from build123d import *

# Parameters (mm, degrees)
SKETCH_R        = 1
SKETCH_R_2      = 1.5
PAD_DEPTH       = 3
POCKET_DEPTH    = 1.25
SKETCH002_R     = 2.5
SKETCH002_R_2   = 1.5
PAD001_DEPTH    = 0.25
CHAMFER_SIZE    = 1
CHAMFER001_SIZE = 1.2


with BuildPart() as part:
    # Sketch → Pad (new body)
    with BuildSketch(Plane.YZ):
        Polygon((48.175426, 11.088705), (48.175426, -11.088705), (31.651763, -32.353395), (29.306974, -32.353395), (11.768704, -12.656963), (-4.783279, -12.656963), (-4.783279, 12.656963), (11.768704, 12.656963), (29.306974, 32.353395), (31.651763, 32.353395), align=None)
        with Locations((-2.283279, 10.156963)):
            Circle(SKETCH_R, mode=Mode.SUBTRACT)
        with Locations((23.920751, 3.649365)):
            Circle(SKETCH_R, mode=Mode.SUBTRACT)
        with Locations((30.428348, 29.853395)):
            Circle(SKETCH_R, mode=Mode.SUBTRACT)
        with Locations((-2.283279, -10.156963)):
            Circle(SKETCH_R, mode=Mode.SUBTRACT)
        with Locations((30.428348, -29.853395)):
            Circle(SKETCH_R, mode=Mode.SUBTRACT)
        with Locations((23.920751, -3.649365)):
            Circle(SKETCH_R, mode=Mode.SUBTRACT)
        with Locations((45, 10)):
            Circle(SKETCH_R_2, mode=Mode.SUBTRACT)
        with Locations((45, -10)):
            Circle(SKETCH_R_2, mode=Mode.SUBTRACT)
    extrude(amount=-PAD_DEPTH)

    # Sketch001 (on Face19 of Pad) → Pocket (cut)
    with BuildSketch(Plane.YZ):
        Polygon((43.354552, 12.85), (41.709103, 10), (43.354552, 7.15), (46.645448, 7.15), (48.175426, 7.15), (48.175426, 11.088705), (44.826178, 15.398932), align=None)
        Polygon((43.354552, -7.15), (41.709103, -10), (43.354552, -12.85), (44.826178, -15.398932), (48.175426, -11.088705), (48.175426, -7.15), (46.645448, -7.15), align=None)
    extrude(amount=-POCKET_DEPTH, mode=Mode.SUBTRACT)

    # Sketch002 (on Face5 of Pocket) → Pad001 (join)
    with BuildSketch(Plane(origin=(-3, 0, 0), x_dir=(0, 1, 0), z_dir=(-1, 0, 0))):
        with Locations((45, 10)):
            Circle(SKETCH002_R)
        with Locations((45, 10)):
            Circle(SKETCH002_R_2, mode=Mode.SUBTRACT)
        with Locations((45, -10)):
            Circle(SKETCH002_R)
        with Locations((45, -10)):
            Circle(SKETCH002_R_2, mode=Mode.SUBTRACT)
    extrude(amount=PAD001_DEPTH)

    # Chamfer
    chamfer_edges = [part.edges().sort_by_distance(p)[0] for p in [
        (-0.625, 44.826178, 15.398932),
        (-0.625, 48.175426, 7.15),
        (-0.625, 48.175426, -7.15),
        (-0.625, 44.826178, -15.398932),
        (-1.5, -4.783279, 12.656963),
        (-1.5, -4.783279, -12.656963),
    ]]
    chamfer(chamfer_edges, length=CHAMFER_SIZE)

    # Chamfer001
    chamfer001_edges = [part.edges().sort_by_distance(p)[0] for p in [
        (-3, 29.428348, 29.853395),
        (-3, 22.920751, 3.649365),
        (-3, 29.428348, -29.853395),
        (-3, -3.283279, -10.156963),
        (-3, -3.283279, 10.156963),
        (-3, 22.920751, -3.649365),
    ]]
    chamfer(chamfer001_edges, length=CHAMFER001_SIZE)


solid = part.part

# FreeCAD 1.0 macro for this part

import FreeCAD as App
import Part
import Sketcher
Q = App.Units.Quantity


def edges_at(feature, points):
    """Names of the edges that pass closest to the given points."""
    edges = feature.Shape.Edges
    near = lambda p: min(range(len(edges)), key=lambda i: edges[i].distToShape(Part.Vertex(*p))[0])
    return sorted({f"Edge{near(p) + 1}" for p in points})


def add_polygon(sketch, points):
    """Adds a closed chain of lines whose ends are joined by coincident constraints."""
    first, n = sketch.GeometryCount, len(points)
    for a, b in zip(points, points[1:] + points[:1]):
        sketch.addGeometry(Part.LineSegment(App.Vector(*a, 0), App.Vector(*b, 0)), False)
    for i in range(n):
        sketch.addConstraint(Sketcher.Constraint("Coincident", first + i, 2, first + (i + 1) % n, 1))

doc = App.newDocument("Part")
body = doc.addObject("PartDesign::Body", "Body")

# Sketch on YZ plane
sketch1 = doc.addObject("Sketcher::SketchObject", "Sketch")
body.addObject(sketch1)
sketch1.AttachmentSupport = (doc.YZ_Plane, [""])
sketch1.MapMode = "FlatFace"
add_polygon(sketch1, [(48.2, -11.1), (48.2, 11.1), (31.7, 32.4), (29.3, 32.4), (11.8, 12.7), (-4.8, 12.7), (-4.8, -12.7), (11.8, -12.7), (29.3, -32.4), (31.7, -32.4)])  # lines 0-9
sketch1.addGeometry(Part.Circle(App.Vector(30.4, -29.9, 0), App.Vector(0, 0, 1), 1), False)  # 10
sketch1.addGeometry(Part.Circle(App.Vector(45, -10, 0), App.Vector(0, 0, 1), 1.5), False)  # 11
sketch1.addGeometry(Part.Circle(App.Vector(23.9, -3.6, 0), App.Vector(0, 0, 1), 1), False)  # 12
sketch1.addGeometry(Part.Circle(App.Vector(-2.3, -10.2, 0), App.Vector(0, 0, 1), 1), False)  # 13
sketch1.addGeometry(Part.Circle(App.Vector(45, 10, 0), App.Vector(0, 0, 1), 1.5), False)  # 14
sketch1.addGeometry(Part.Circle(App.Vector(23.9, 3.6, 0), App.Vector(0, 0, 1), 1), False)  # 15
sketch1.addGeometry(Part.Circle(App.Vector(30.4, 29.9, 0), App.Vector(0, 0, 1), 1), False)  # 16
sketch1.addGeometry(Part.Circle(App.Vector(-2.3, 10.2, 0), App.Vector(0, 0, 1), 1), False)  # 17
sketch1.addConstraint(Sketcher.Constraint("Vertical", 0))
sketch1.addConstraint(Sketcher.Constraint("Horizontal", 2))
sketch1.addConstraint(Sketcher.Constraint("Horizontal", 4))
sketch1.addConstraint(Sketcher.Constraint("Vertical", 5))
sketch1.addConstraint(Sketcher.Constraint("Horizontal", 6))
sketch1.addConstraint(Sketcher.Constraint("Horizontal", 8))
sketch1.addConstraint(Sketcher.Constraint("Equal", 10, 12))
sketch1.addConstraint(Sketcher.Constraint("Equal", 12, 13))
sketch1.addConstraint(Sketcher.Constraint("Equal", 11, 14))
sketch1.addConstraint(Sketcher.Constraint("Equal", 13, 15))
sketch1.addConstraint(Sketcher.Constraint("Equal", 15, 16))
sketch1.addConstraint(Sketcher.Constraint("Equal", 16, 17))
sketch1.addConstraint(Sketcher.Constraint("Symmetric", 11, 3, 14, 3, -1))
sketch1.addConstraint(Sketcher.Constraint("Symmetric", 12, 3, 15, 3, -1))
sketch1.addConstraint(Sketcher.Constraint("Symmetric", 10, 3, 16, 3, -1))
sketch1.addConstraint(Sketcher.Constraint("Symmetric", 13, 3, 17, 3, -1))
sketch1.addConstraint(Sketcher.Constraint("Symmetric", 3, 2, 6, 2, -1))
sketch1.addConstraint(Sketcher.Constraint("Symmetric", 2, 2, 7, 2, -1))
sketch1.addConstraint(Sketcher.Constraint("Vertical", 1, 2, 8, 2))
sketch1.addConstraint(Sketcher.Constraint("Equal", 1, 9))
sketch1.addConstraint(Sketcher.Constraint("Diameter", 10, Q("2 mm")))
sketch1.addConstraint(Sketcher.Constraint("Diameter", 11, Q("3 mm")))
sketch1.addConstraint(Sketcher.Constraint("DistanceX", -1, 1, 11, 3, Q("45 mm")))
sketch1.addConstraint(Sketcher.Constraint("DistanceY", 11, 3, -1, 1, Q("10 mm")))
sketch1.addConstraint(Sketcher.Constraint("DistanceY", 16, 3, 1, 2, Q("2.5 mm")))
sketch1.addConstraint(Sketcher.Constraint("DistanceY", 17, 3, 3, 2, Q("2.5 mm")))
sketch1.addConstraint(Sketcher.Constraint("DistanceX", 4, 2, 17, 3, Q("2.5 mm")))
sketch1.addConstraint(Sketcher.Constraint("Distance", 3, Q("26.373099 mm")))
sketch1.addConstraint(Sketcher.Constraint("DistanceX", 2, 2, 2, 1, Q("2.344789 mm")))
sketch1.addConstraint(Sketcher.Constraint("DistanceY", 0, 1, 0, 2, Q("22.17741 mm")))
sketch1.addConstraint(Sketcher.Constraint("Distance", 1, Q("26.929881 mm")))
sketch1.addConstraint(Sketcher.Constraint("DistanceX", 4, 2, 4, 1, Q("16.551983 mm")))
sketch1.addConstraint(Sketcher.Constraint("DistanceY", 5, 2, 5, 1, Q("25.313926 mm")))
sketch1.addConstraint(Sketcher.Constraint("DistanceX", -1, 1, 10, 3, Q("30.428348 mm")))
sketch1.addConstraint(Sketcher.Constraint("DistanceX", -1, 1, 12, 3, Q("23.920751 mm")))
sketch1.addConstraint(Sketcher.Constraint("DistanceX", 13, 3, -1, 1, Q("2.283279 mm")))
sketch1.addConstraint(Sketcher.Constraint("DistanceY", 10, 3, 12, 3, Q("26.20403 mm")))
sketch1.addConstraint(Sketcher.Constraint("DistanceY", 12, 3, 15, 3, Q("7.29873 mm")))
pad1 = doc.addObject("PartDesign::Pad", "Pad")
body.addObject(pad1)
pad1.Profile = sketch1
pad1.Length = 3
pad1.Reversed = True

# Sketch on YZ plane
sketch2 = doc.addObject("Sketcher::SketchObject", "Sketch001")
body.addObject(sketch2)
sketch2.AttachmentSupport = (doc.YZ_Plane, [""])
sketch2.MapMode = "FlatFace"
add_polygon(sketch2, [(43.4, 12.8), (41.7, 10), (43.4, 7.2), (48.2, 7.2), (48.2, 11.1), (44.8, 15.4)])  # lines 0-5
add_polygon(sketch2, [(43.4, -7.2), (41.7, -10), (43.4, -12.8), (44.8, -15.4), (48.2, -11.1), (48.2, -7.2)])  # lines 6-11
sketch2.addConstraint(Sketcher.Constraint("Horizontal", 2))
sketch2.addConstraint(Sketcher.Constraint("Vertical", 3))
sketch2.addConstraint(Sketcher.Constraint("Vertical", 10))
sketch2.addConstraint(Sketcher.Constraint("Horizontal", 11))
sketch2.addConstraint(Sketcher.Constraint("Symmetric", 0, 2, 6, 2, -1))
sketch2.addConstraint(Sketcher.Constraint("Symmetric", 5, 2, 7, 2, -1))
sketch2.addConstraint(Sketcher.Constraint("Symmetric", 4, 2, 8, 2, -1))
sketch2.addConstraint(Sketcher.Constraint("Symmetric", 3, 2, 9, 2, -1))
sketch2.addConstraint(Sketcher.Constraint("Symmetric", 1, 2, 11, 2, -1))
sketch2.addConstraint(Sketcher.Constraint("Parallel", 0, 5))
sketch2.addConstraint(Sketcher.Constraint("Parallel", 5, 6))
sketch2.addConstraint(Sketcher.Constraint("Vertical", 1, 2, 5, 2))
sketch2.addConstraint(Sketcher.Constraint("Angle", 0, Q("-120.000011 deg")))
sketch2.addConstraint(Sketcher.Constraint("DistanceY", -1, 1, 0, 2, Q("10 mm")))
sketch2.addConstraint(Sketcher.Constraint("DistanceY", 1, 2, 5, 2, Q("5.7 mm")))
sketch2.addConstraint(Sketcher.Constraint("DistanceX", 2, 1, 2, 2, Q("4.820874 mm")))
sketch2.addConstraint(Sketcher.Constraint("DistanceY", 3, 1, 3, 2, Q("3.938705 mm")))
sketch2.addConstraint(Sketcher.Constraint("DistanceX", -1, 1, 1, 2, Q("43.354552 mm")))
sketch2.addConstraint(Sketcher.Constraint("DistanceX", 4, 2, 3, 2, Q("3.349248 mm")))
pocket1 = doc.addObject("PartDesign::Pocket", "Pocket")
body.addObject(pocket1)
pocket1.Profile = sketch2
pocket1.Length = 1.25

# Sketch on YZ plane
sketch3 = doc.addObject("Sketcher::SketchObject", "Sketch002")
body.addObject(sketch3)
sketch3.AttachmentSupport = (doc.YZ_Plane, [""])
sketch3.MapMode = "FlatFace"
sketch3.AttachmentOffset = App.Placement(App.Vector(0, 0, -3), App.Rotation())
sketch3.addGeometry(Part.Circle(App.Vector(45, -10, 0), App.Vector(0, 0, 1), 2.5), False)
sketch3.addGeometry(Part.Circle(App.Vector(45, -10, 0), App.Vector(0, 0, 1), 1.5), False)
sketch3.addGeometry(Part.Circle(App.Vector(45, 10, 0), App.Vector(0, 0, 1), 2.5), False)
sketch3.addGeometry(Part.Circle(App.Vector(45, 10, 0), App.Vector(0, 0, 1), 1.5), False)
sketch3.addConstraint(Sketcher.Constraint("Coincident", 1, 3, 0, 3))
sketch3.addConstraint(Sketcher.Constraint("Coincident", 3, 3, 2, 3))
sketch3.addConstraint(Sketcher.Constraint("Equal", 0, 2))
sketch3.addConstraint(Sketcher.Constraint("Equal", 1, 3))
sketch3.addConstraint(Sketcher.Constraint("Symmetric", 0, 3, 2, 3, -1))
sketch3.addConstraint(Sketcher.Constraint("Diameter", 0, Q("5 mm")))
sketch3.addConstraint(Sketcher.Constraint("Diameter", 1, Q("3 mm")))
sketch3.addConstraint(Sketcher.Constraint("DistanceX", -1, 1, 0, 3, Q("45 mm")))
sketch3.addConstraint(Sketcher.Constraint("DistanceY", 0, 3, -1, 1, Q("10 mm")))
pad2 = doc.addObject("PartDesign::Pad", "Pad001")
body.addObject(pad2)
pad2.Profile = sketch3
pad2.Length = 0.25
pad2.Reversed = True
doc.recompute()

chamfer = doc.addObject("PartDesign::Chamfer", "Chamfer")
body.addObject(chamfer)
chamfer.Base = (pad2, edges_at(pad2, [
    (-0.625, 44.826, 15.399),
    (-0.625, 48.175, 7.15),
    (-0.625, 48.175, -7.15),
    (-0.625, 44.826, -15.399),
    (-1.5, -4.783, 12.657),
    (-1.5, -4.783, -12.657),
]))
chamfer.Size = 1
doc.recompute()

chamfer2 = doc.addObject("PartDesign::Chamfer", "Chamfer001")
body.addObject(chamfer2)
chamfer2.Base = (chamfer, edges_at(chamfer, [
    (-3, 29.428, 29.853),
    (-3, 22.921, 3.649),
    (-3, 29.428, -29.853),
    (-3, -3.283, -10.157),
    (-3, -3.283, 10.157),
    (-3, 22.921, -3.649),
]))
chamfer2.Size = 1.2

doc.recompute()
